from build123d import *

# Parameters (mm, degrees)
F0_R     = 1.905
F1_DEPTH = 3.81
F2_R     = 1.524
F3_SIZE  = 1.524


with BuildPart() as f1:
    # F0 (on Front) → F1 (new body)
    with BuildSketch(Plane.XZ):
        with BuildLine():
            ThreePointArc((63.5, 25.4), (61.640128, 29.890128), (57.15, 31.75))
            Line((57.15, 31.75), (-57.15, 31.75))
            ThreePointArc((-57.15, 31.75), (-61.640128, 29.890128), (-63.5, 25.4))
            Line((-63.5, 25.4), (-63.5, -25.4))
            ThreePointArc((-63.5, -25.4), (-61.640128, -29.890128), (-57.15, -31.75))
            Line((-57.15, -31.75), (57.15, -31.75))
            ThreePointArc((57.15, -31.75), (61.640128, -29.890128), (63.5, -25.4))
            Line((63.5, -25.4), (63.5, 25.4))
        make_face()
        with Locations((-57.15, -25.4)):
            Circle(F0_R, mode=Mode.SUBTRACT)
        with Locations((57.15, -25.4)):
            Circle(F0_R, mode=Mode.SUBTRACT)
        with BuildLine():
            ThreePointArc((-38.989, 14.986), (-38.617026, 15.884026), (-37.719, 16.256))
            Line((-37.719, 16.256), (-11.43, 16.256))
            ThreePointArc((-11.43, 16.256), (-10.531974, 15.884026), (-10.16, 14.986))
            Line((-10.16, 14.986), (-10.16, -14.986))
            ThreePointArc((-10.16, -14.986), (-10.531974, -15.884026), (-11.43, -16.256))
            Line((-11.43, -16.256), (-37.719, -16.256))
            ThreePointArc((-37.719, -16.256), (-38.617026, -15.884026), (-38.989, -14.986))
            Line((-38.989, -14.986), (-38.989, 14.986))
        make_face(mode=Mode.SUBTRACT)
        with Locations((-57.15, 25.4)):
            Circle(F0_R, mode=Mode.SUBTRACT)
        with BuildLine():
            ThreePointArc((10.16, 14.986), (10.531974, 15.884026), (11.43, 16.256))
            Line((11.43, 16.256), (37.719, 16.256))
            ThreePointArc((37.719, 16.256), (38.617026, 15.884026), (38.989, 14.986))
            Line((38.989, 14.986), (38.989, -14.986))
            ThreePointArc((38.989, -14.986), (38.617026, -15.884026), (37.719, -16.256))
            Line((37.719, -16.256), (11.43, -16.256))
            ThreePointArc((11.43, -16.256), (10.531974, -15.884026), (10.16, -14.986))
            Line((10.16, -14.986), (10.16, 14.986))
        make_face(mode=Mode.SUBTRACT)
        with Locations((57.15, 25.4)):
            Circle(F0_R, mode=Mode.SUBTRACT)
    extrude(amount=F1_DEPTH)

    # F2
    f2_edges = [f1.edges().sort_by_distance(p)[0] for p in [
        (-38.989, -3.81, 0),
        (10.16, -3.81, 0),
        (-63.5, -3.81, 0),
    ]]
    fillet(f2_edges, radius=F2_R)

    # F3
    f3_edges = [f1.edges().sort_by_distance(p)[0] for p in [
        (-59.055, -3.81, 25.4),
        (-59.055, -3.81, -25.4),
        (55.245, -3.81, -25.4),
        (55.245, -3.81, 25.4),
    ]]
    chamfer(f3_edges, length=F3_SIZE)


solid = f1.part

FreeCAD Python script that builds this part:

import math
import FreeCAD as App
import Part
import Sketcher

V = App.Vector
Q = App.Units.Quantity


def edges_at(feature, points):
    """Names of the edges that pass closest to the given points."""
    edges = feature.Shape.Edges
    near = lambda p: min(range(len(edges)), key=lambda i: edges[i].distToShape(Part.Vertex(*p))[0])
    return sorted({f"Edge{near(p) + 1}" for p in points})

doc = App.newDocument("Part")
params = doc.addObject("Spreadsheet::Sheet", "Params")
for row, (alias, value) in enumerate([
    ("sketch1_diameter", "0.15 in"),
    ("sketch1_height", "2 in"),
    ("sketch1_radius", "0.25 in"),
    ("sketch1_radius2", "0.0499999 in"),
    ("sketch1_width", "4.5 in"),
    ("pad1_length", "0.15 in"),
    ("fillet_radius", "0.06 in"),
    ("chamfer_size", "0.06 in"),
], start=1):
    params.set(f"A{row}", alias)
    params.set(f"B{row}", "=" + value)
    params.setAlias(f"B{row}", alias)

body = doc.addObject("PartDesign::Body", "Body")

# Sketch on XZ plane
sketch1 = doc.addObject("Sketcher::SketchObject", "Sketch")
body.addObject(sketch1)
sketch1.AttachmentSupport = (doc.XZ_Plane, [""])
sketch1.MapMode = "FlatFace"
sketch1.addGeometry([
    Part.ArcOfCircle(Part.Circle(V(57.15, 25.4, 0), V(0, 0, 1), 6.35), math.radians(0.000002), math.radians(89.999998)),  # 0
    Part.LineSegment(V(57.15, 31.75, 0), V(-57.15, 31.75, 0)),  # 1
    Part.ArcOfCircle(Part.Circle(V(-57.15, 25.4, 0), V(0, 0, 1), 6.35), math.radians(90.000002), math.radians(179.999998)),  # 2
    Part.LineSegment(V(-63.5, 25.4, 0), V(-63.5, -25.4, 0)),  # 3
    Part.ArcOfCircle(Part.Circle(V(-57.15, -25.4, 0), V(0, 0, 1), 6.35), math.radians(-179.999998), math.radians(-90.000002)),  # 4
    Part.LineSegment(V(-57.15, -31.75, 0), V(57.15, -31.75, 0)),  # 5
    Part.ArcOfCircle(Part.Circle(V(57.15, -25.4, 0), V(0, 0, 1), 6.35), math.radians(-89.999998), math.radians(-0.000002)),  # 6
    Part.LineSegment(V(63.5, -25.4, 0), V(63.5, 25.4, 0)),  # 7
    Part.Circle(V(-57.15, -25.4, 0), V(0, 0, 1), 1.905),  # 8
    Part.Circle(V(57.15, -25.4, 0), V(0, 0, 1), 1.905),  # 9
    Part.LineSegment(V(-38.989, -14.986, 0), V(-38.989, 14.986, 0)),  # 10
    Part.ArcOfCircle(Part.Circle(V(-37.719001, 14.986001, 0), V(0, 0, 1), 1.269999), math.radians(89.99994), math.radians(180.00006)),  # 11
    Part.LineSegment(V(-37.719, 16.256, 0), V(-11.43, 16.256, 0)),  # 12
    Part.ArcOfCircle(Part.Circle(V(-11.429999, 14.986001, 0), V(0, 0, 1), 1.269999), math.radians(-0.00006), math.radians(90.00006)),  # 13
    Part.LineSegment(V(-10.16, 14.986, 0), V(-10.16, -14.986, 0)),  # 14
    Part.ArcOfCircle(Part.Circle(V(-11.429999, -14.986001, 0), V(0, 0, 1), 1.269999), math.radians(-90.00006), math.radians(0.00006)),  # 15
    Part.LineSegment(V(-11.43, -16.256, 0), V(-37.719, -16.256, 0)),  # 16
    Part.ArcOfCircle(Part.Circle(V(-37.719001, -14.986001, 0), V(0, 0, 1), 1.269999), math.radians(179.99994), math.radians(270.00006)),  # 17
    Part.Circle(V(-57.15, 25.4, 0), V(0, 0, 1), 1.905),  # 18
    Part.LineSegment(V(10.16, -14.986, 0), V(10.16, 14.986, 0)),  # 19
    Part.ArcOfCircle(Part.Circle(V(11.429999, 14.986001, 0), V(0, 0, 1), 1.269999), math.radians(89.99994), math.radians(180.00006)),  # 20
    Part.LineSegment(V(11.43, 16.256, 0), V(37.719, 16.256, 0)),  # 21
    Part.ArcOfCircle(Part.Circle(V(37.719001, 14.986001, 0), V(0, 0, 1), 1.269999), math.radians(-0.00006), math.radians(90.00006)),  # 22
    Part.LineSegment(V(38.989, 14.986, 0), V(38.989, -14.986, 0)),  # 23
    Part.ArcOfCircle(Part.Circle(V(37.719001, -14.986001, 0), V(0, 0, 1), 1.269999), math.radians(-90.00006), math.radians(0.00006)),  # 24
    Part.LineSegment(V(37.719, -16.256, 0), V(11.43, -16.256, 0)),  # 25
    Part.ArcOfCircle(Part.Circle(V(11.429999, -14.986001, 0), V(0, 0, 1), 1.269999), math.radians(179.99994), math.radians(270.00006)),  # 26
    Part.Circle(V(57.15, 25.4, 0), V(0, 0, 1), 1.905),  # 27
], False)
sketch1.addConstraint([
    Sketcher.Constraint("Tangent", 0, 2, 1, 1),
    Sketcher.Constraint("Tangent", 1, 2, 2, 1),
    Sketcher.Constraint("Tangent", 2, 2, 3, 1),
    Sketcher.Constraint("Tangent", 3, 2, 4, 1),
    Sketcher.Constraint("Tangent", 4, 2, 5, 1),
    Sketcher.Constraint("Tangent", 5, 2, 6, 1),
    Sketcher.Constraint("Tangent", 6, 2, 7, 1),
    Sketcher.Constraint("Tangent", 7, 2, 0, 1),
    Sketcher.Constraint("Tangent", 10, 2, 11, 2),
    Sketcher.Constraint("Tangent", 11, 1, 12, 1),
    Sketcher.Constraint("Tangent", 12, 2, 13, 2),
    Sketcher.Constraint("Tangent", 13, 1, 14, 1),
    Sketcher.Constraint("Tangent", 14, 2, 15, 2),
    Sketcher.Constraint("Tangent", 15, 1, 16, 1),
    Sketcher.Constraint("Tangent", 16, 2, 17, 2),
    Sketcher.Constraint("Tangent", 17, 1, 10, 1),
    Sketcher.Constraint("Tangent", 19, 2, 20, 2),
    Sketcher.Constraint("Tangent", 20, 1, 21, 1),
    Sketcher.Constraint("Tangent", 21, 2, 22, 2),
    Sketcher.Constraint("Tangent", 22, 1, 23, 1),
    Sketcher.Constraint("Tangent", 23, 2, 24, 2),
    Sketcher.Constraint("Tangent", 24, 1, 25, 1),
    Sketcher.Constraint("Tangent", 25, 2, 26, 2),
    Sketcher.Constraint("Tangent", 26, 1, 19, 1),
    Sketcher.Constraint("Horizontal", 1),
    Sketcher.Constraint("Vertical", 3),
    Sketcher.Constraint("Horizontal", 5),
    Sketcher.Constraint("Vertical", 7),
    Sketcher.Constraint("Vertical", 10),
    Sketcher.Constraint("Horizontal", 12),
    Sketcher.Constraint("Vertical", 14),
    Sketcher.Constraint("Horizontal", 16),
    Sketcher.Constraint("Vertical", 19),
    Sketcher.Constraint("Horizontal", 21),
    Sketcher.Constraint("Vertical", 23),
    Sketcher.Constraint("Horizontal", 25),
    Sketcher.Constraint("Coincident", 8, 3, 4, 3),
    Sketcher.Constraint("Coincident", 9, 3, 6, 3),
    Sketcher.Constraint("Coincident", 18, 3, 2, 3),
    Sketcher.Constraint("Coincident", 27, 3, 0, 3),
    Sketcher.Constraint("Equal", 0, 2),
    Sketcher.Constraint("Equal", 2, 4),
    Sketcher.Constraint("Equal", 4, 6),
    Sketcher.Constraint("Equal", 8, 9),
    Sketcher.Constraint("Equal", 11, 13),
    Sketcher.Constraint("Equal", 13, 15),
    Sketcher.Constraint("Equal", 15, 17),
    Sketcher.Constraint("Equal", 9, 18),
    Sketcher.Constraint("Equal", 17, 20),
    Sketcher.Constraint("Equal", 20, 22),
    Sketcher.Constraint("Equal", 22, 24),
    Sketcher.Constraint("Equal", 24, 26),
    Sketcher.Constraint("Equal", 18, 27),
    Sketcher.Constraint("Symmetric", 0, 3, 4, 3, -1, 1),
    Sketcher.Constraint("Symmetric", 15, 3, 20, 3, -1, 1),
    Sketcher.Constraint("Symmetric", 11, 3, 24, 3, -1, 1),
    Sketcher.Constraint("Horizontal", 13, 3, 20, 3),
    Sketcher.Constraint("Diameter", 8, Q("0.15 in")),
    Sketcher.Constraint("DistanceY", 3, 2, 3, 1, Q("2 in")),
    Sketcher.Constraint("Radius", 0, Q("0.25 in")),
    Sketcher.Constraint("Radius", 11, Q("0.0499999 in")),
    Sketcher.Constraint("DistanceX", 1, 2, 1, 1, Q("4.5 in")),
    Sketcher.Constraint("DistanceY", 10, 1, 10, 2, Q("1.18 in")),
    Sketcher.Constraint("DistanceX", 13, 1, -1, 1, Q("0.4 in")),
    Sketcher.Constraint("DistanceX", 12, 1, 12, 2, Q("1.035 in")),
])
sketch1.setExpression("Constraints[57]", "Params.sketch1_diameter")
sketch1.setExpression("Constraints[58]", "Params.sketch1_height")
sketch1.setExpression("Constraints[59]", "Params.sketch1_radius")
sketch1.setExpression("Constraints[60]", "Params.sketch1_radius2")
sketch1.setExpression("Constraints[61]", "Params.sketch1_width")
pad1 = doc.addObject("PartDesign::Pad", "Pad")
body.addObject(pad1)
pad1.Profile = sketch1
pad1.setExpression("Length", "Params.pad1_length")
doc.recompute()

fillet = doc.addObject("PartDesign::Fillet", "Fillet")
body.addObject(fillet)
fillet.Base = (pad1, edges_at(pad1, [(-38.989, -3.81, 0), (10.16, -3.81, 0), (-63.5, -3.81, 0)]))
fillet.setExpression("Radius", "Params.fillet_radius")
doc.recompute()

chamfer = doc.addObject("PartDesign::Chamfer", "Chamfer")
body.addObject(chamfer)
chamfer.Base = (fillet, edges_at(fillet, [
    (-59.055, -3.81, 25.4),
    (-59.055, -3.81, -25.4),
    (55.245, -3.81, -25.4),
    (55.245, -3.81, 25.4),
]))
chamfer.setExpression("Size", "Params.chamfer_size")

doc.recompute()
